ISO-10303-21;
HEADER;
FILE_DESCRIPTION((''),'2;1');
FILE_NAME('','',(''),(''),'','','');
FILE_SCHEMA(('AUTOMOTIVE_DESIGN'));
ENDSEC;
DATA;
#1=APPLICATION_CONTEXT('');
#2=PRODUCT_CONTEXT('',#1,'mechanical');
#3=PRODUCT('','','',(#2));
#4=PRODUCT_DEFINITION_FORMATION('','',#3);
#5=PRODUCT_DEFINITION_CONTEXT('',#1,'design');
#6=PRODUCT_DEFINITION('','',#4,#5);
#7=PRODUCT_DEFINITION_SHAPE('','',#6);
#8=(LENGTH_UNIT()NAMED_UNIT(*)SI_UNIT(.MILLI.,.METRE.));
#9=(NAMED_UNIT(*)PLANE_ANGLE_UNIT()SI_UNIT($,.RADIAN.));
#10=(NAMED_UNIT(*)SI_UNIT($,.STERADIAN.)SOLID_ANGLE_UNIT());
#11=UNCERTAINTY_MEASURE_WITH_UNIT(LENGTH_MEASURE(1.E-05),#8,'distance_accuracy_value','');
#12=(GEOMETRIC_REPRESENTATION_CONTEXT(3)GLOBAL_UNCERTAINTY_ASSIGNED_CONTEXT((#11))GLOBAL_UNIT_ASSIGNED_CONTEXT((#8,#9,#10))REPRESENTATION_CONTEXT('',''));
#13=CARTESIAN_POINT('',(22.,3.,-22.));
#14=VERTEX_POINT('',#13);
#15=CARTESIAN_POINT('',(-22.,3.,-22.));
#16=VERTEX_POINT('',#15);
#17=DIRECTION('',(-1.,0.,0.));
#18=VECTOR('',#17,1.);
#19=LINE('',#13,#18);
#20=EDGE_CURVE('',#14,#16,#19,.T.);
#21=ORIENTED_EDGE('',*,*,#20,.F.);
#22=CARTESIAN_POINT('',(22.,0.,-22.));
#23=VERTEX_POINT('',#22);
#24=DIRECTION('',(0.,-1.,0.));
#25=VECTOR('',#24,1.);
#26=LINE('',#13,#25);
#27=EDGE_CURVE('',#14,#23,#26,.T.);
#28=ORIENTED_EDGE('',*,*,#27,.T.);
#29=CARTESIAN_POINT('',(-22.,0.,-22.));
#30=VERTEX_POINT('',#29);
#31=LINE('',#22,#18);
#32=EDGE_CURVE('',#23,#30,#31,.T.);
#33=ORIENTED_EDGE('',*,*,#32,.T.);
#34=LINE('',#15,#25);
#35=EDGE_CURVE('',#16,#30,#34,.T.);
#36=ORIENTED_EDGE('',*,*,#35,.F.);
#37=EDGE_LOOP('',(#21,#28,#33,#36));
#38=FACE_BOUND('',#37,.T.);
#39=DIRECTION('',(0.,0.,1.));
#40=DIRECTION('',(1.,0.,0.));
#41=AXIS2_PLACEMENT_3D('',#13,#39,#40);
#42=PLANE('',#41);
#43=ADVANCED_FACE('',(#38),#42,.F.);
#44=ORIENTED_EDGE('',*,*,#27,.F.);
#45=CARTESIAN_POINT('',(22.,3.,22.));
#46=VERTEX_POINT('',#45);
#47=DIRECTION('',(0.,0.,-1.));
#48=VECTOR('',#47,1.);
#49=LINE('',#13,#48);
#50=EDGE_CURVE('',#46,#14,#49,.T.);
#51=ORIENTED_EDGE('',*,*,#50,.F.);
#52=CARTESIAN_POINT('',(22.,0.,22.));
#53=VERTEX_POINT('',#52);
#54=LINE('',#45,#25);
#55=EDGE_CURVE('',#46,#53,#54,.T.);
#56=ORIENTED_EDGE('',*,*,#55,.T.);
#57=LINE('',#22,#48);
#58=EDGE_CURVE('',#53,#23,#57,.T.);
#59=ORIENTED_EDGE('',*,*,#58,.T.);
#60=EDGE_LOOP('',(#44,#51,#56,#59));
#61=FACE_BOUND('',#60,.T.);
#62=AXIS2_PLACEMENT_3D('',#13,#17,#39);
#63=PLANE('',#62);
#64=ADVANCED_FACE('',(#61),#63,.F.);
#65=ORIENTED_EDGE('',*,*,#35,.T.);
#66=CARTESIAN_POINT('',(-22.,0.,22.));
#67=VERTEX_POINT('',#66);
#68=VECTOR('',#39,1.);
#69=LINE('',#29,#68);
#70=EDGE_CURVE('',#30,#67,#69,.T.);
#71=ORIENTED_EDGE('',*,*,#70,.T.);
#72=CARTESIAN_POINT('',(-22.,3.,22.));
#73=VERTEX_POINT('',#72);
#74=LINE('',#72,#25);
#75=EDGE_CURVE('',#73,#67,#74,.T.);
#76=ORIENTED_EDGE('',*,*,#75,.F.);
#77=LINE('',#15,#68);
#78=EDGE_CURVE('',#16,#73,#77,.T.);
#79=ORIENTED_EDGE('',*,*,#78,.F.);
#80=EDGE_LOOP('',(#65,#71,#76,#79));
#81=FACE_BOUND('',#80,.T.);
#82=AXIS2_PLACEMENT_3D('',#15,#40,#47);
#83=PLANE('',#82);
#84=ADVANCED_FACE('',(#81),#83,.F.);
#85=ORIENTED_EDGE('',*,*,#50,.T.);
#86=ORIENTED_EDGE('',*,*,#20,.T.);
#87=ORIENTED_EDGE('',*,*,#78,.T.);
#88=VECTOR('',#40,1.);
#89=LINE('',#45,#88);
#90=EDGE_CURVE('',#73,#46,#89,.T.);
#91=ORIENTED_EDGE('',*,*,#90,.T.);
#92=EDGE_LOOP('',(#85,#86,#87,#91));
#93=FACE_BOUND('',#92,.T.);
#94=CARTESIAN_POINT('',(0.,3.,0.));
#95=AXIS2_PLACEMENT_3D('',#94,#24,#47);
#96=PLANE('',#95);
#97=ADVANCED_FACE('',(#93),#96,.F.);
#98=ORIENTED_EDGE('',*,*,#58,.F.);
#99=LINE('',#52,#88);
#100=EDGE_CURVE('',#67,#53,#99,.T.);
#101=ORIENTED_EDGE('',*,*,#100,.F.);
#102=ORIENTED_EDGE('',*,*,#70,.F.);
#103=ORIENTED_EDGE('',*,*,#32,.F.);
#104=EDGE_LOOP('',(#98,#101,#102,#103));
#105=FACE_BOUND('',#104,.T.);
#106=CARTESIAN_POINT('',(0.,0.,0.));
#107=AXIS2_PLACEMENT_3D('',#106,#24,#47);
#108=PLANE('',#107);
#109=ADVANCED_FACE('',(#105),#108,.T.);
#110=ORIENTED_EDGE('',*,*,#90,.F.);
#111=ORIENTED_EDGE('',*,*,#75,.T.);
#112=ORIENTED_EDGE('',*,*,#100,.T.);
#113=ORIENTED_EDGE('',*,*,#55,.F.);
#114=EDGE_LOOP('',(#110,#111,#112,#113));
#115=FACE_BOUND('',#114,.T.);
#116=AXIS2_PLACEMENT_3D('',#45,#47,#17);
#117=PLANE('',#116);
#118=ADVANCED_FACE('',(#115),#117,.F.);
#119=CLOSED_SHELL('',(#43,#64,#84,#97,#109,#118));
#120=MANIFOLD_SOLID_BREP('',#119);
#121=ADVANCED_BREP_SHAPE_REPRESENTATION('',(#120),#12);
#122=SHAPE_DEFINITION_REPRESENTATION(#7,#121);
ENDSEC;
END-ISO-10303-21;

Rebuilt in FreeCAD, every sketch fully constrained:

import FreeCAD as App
import Part
import Sketcher


def add_polygon(sketch, points):
    """Adds a closed chain of lines whose ends are joined by coincident constraints."""
    first, n = sketch.GeometryCount, len(points)
    for a, b in zip(points, points[1:] + points[:1]):
        sketch.addGeometry(Part.LineSegment(App.Vector(*a, 0), App.Vector(*b, 0)), False)
    for i in range(n):
        sketch.addConstraint(Sketcher.Constraint("Coincident", first + i, 2, first + (i + 1) % n, 1))

doc = App.newDocument("Part")
body = doc.addObject("PartDesign::Body", "Body")

# Sketch on XZ plane
sketch1 = body.newObject("Sketcher::SketchObject", "Sketch")
sketch1.AttachmentSupport = (doc.getObject("XZ_Plane"), [""])
sketch1.MapMode = "FlatFace"
add_polygon(sketch1, [(-22, -22), (-22, 22), (22, 22), (22, -22)])  # lines 0-3
sketch1.addConstraint([
    Sketcher.Constraint("Vertical", 0),
    Sketcher.Constraint("Horizontal", 1),
    Sketcher.Constraint("Vertical", 2),
    Sketcher.Constraint("Horizontal", 3),
    Sketcher.Constraint("Symmetric", 0, 2, 2, 2, -1, 1),
    Sketcher.Constraint("Equal", 3, 0),
    Sketcher.Constraint("DistanceX", 1, 1, 1, 2, 44.0),
])
pad1 = body.newObject("PartDesign::Pad", "Pad")
pad1.Profile = sketch1
pad1.Length = 3
pad1.Reversed = True

doc.recompute()
